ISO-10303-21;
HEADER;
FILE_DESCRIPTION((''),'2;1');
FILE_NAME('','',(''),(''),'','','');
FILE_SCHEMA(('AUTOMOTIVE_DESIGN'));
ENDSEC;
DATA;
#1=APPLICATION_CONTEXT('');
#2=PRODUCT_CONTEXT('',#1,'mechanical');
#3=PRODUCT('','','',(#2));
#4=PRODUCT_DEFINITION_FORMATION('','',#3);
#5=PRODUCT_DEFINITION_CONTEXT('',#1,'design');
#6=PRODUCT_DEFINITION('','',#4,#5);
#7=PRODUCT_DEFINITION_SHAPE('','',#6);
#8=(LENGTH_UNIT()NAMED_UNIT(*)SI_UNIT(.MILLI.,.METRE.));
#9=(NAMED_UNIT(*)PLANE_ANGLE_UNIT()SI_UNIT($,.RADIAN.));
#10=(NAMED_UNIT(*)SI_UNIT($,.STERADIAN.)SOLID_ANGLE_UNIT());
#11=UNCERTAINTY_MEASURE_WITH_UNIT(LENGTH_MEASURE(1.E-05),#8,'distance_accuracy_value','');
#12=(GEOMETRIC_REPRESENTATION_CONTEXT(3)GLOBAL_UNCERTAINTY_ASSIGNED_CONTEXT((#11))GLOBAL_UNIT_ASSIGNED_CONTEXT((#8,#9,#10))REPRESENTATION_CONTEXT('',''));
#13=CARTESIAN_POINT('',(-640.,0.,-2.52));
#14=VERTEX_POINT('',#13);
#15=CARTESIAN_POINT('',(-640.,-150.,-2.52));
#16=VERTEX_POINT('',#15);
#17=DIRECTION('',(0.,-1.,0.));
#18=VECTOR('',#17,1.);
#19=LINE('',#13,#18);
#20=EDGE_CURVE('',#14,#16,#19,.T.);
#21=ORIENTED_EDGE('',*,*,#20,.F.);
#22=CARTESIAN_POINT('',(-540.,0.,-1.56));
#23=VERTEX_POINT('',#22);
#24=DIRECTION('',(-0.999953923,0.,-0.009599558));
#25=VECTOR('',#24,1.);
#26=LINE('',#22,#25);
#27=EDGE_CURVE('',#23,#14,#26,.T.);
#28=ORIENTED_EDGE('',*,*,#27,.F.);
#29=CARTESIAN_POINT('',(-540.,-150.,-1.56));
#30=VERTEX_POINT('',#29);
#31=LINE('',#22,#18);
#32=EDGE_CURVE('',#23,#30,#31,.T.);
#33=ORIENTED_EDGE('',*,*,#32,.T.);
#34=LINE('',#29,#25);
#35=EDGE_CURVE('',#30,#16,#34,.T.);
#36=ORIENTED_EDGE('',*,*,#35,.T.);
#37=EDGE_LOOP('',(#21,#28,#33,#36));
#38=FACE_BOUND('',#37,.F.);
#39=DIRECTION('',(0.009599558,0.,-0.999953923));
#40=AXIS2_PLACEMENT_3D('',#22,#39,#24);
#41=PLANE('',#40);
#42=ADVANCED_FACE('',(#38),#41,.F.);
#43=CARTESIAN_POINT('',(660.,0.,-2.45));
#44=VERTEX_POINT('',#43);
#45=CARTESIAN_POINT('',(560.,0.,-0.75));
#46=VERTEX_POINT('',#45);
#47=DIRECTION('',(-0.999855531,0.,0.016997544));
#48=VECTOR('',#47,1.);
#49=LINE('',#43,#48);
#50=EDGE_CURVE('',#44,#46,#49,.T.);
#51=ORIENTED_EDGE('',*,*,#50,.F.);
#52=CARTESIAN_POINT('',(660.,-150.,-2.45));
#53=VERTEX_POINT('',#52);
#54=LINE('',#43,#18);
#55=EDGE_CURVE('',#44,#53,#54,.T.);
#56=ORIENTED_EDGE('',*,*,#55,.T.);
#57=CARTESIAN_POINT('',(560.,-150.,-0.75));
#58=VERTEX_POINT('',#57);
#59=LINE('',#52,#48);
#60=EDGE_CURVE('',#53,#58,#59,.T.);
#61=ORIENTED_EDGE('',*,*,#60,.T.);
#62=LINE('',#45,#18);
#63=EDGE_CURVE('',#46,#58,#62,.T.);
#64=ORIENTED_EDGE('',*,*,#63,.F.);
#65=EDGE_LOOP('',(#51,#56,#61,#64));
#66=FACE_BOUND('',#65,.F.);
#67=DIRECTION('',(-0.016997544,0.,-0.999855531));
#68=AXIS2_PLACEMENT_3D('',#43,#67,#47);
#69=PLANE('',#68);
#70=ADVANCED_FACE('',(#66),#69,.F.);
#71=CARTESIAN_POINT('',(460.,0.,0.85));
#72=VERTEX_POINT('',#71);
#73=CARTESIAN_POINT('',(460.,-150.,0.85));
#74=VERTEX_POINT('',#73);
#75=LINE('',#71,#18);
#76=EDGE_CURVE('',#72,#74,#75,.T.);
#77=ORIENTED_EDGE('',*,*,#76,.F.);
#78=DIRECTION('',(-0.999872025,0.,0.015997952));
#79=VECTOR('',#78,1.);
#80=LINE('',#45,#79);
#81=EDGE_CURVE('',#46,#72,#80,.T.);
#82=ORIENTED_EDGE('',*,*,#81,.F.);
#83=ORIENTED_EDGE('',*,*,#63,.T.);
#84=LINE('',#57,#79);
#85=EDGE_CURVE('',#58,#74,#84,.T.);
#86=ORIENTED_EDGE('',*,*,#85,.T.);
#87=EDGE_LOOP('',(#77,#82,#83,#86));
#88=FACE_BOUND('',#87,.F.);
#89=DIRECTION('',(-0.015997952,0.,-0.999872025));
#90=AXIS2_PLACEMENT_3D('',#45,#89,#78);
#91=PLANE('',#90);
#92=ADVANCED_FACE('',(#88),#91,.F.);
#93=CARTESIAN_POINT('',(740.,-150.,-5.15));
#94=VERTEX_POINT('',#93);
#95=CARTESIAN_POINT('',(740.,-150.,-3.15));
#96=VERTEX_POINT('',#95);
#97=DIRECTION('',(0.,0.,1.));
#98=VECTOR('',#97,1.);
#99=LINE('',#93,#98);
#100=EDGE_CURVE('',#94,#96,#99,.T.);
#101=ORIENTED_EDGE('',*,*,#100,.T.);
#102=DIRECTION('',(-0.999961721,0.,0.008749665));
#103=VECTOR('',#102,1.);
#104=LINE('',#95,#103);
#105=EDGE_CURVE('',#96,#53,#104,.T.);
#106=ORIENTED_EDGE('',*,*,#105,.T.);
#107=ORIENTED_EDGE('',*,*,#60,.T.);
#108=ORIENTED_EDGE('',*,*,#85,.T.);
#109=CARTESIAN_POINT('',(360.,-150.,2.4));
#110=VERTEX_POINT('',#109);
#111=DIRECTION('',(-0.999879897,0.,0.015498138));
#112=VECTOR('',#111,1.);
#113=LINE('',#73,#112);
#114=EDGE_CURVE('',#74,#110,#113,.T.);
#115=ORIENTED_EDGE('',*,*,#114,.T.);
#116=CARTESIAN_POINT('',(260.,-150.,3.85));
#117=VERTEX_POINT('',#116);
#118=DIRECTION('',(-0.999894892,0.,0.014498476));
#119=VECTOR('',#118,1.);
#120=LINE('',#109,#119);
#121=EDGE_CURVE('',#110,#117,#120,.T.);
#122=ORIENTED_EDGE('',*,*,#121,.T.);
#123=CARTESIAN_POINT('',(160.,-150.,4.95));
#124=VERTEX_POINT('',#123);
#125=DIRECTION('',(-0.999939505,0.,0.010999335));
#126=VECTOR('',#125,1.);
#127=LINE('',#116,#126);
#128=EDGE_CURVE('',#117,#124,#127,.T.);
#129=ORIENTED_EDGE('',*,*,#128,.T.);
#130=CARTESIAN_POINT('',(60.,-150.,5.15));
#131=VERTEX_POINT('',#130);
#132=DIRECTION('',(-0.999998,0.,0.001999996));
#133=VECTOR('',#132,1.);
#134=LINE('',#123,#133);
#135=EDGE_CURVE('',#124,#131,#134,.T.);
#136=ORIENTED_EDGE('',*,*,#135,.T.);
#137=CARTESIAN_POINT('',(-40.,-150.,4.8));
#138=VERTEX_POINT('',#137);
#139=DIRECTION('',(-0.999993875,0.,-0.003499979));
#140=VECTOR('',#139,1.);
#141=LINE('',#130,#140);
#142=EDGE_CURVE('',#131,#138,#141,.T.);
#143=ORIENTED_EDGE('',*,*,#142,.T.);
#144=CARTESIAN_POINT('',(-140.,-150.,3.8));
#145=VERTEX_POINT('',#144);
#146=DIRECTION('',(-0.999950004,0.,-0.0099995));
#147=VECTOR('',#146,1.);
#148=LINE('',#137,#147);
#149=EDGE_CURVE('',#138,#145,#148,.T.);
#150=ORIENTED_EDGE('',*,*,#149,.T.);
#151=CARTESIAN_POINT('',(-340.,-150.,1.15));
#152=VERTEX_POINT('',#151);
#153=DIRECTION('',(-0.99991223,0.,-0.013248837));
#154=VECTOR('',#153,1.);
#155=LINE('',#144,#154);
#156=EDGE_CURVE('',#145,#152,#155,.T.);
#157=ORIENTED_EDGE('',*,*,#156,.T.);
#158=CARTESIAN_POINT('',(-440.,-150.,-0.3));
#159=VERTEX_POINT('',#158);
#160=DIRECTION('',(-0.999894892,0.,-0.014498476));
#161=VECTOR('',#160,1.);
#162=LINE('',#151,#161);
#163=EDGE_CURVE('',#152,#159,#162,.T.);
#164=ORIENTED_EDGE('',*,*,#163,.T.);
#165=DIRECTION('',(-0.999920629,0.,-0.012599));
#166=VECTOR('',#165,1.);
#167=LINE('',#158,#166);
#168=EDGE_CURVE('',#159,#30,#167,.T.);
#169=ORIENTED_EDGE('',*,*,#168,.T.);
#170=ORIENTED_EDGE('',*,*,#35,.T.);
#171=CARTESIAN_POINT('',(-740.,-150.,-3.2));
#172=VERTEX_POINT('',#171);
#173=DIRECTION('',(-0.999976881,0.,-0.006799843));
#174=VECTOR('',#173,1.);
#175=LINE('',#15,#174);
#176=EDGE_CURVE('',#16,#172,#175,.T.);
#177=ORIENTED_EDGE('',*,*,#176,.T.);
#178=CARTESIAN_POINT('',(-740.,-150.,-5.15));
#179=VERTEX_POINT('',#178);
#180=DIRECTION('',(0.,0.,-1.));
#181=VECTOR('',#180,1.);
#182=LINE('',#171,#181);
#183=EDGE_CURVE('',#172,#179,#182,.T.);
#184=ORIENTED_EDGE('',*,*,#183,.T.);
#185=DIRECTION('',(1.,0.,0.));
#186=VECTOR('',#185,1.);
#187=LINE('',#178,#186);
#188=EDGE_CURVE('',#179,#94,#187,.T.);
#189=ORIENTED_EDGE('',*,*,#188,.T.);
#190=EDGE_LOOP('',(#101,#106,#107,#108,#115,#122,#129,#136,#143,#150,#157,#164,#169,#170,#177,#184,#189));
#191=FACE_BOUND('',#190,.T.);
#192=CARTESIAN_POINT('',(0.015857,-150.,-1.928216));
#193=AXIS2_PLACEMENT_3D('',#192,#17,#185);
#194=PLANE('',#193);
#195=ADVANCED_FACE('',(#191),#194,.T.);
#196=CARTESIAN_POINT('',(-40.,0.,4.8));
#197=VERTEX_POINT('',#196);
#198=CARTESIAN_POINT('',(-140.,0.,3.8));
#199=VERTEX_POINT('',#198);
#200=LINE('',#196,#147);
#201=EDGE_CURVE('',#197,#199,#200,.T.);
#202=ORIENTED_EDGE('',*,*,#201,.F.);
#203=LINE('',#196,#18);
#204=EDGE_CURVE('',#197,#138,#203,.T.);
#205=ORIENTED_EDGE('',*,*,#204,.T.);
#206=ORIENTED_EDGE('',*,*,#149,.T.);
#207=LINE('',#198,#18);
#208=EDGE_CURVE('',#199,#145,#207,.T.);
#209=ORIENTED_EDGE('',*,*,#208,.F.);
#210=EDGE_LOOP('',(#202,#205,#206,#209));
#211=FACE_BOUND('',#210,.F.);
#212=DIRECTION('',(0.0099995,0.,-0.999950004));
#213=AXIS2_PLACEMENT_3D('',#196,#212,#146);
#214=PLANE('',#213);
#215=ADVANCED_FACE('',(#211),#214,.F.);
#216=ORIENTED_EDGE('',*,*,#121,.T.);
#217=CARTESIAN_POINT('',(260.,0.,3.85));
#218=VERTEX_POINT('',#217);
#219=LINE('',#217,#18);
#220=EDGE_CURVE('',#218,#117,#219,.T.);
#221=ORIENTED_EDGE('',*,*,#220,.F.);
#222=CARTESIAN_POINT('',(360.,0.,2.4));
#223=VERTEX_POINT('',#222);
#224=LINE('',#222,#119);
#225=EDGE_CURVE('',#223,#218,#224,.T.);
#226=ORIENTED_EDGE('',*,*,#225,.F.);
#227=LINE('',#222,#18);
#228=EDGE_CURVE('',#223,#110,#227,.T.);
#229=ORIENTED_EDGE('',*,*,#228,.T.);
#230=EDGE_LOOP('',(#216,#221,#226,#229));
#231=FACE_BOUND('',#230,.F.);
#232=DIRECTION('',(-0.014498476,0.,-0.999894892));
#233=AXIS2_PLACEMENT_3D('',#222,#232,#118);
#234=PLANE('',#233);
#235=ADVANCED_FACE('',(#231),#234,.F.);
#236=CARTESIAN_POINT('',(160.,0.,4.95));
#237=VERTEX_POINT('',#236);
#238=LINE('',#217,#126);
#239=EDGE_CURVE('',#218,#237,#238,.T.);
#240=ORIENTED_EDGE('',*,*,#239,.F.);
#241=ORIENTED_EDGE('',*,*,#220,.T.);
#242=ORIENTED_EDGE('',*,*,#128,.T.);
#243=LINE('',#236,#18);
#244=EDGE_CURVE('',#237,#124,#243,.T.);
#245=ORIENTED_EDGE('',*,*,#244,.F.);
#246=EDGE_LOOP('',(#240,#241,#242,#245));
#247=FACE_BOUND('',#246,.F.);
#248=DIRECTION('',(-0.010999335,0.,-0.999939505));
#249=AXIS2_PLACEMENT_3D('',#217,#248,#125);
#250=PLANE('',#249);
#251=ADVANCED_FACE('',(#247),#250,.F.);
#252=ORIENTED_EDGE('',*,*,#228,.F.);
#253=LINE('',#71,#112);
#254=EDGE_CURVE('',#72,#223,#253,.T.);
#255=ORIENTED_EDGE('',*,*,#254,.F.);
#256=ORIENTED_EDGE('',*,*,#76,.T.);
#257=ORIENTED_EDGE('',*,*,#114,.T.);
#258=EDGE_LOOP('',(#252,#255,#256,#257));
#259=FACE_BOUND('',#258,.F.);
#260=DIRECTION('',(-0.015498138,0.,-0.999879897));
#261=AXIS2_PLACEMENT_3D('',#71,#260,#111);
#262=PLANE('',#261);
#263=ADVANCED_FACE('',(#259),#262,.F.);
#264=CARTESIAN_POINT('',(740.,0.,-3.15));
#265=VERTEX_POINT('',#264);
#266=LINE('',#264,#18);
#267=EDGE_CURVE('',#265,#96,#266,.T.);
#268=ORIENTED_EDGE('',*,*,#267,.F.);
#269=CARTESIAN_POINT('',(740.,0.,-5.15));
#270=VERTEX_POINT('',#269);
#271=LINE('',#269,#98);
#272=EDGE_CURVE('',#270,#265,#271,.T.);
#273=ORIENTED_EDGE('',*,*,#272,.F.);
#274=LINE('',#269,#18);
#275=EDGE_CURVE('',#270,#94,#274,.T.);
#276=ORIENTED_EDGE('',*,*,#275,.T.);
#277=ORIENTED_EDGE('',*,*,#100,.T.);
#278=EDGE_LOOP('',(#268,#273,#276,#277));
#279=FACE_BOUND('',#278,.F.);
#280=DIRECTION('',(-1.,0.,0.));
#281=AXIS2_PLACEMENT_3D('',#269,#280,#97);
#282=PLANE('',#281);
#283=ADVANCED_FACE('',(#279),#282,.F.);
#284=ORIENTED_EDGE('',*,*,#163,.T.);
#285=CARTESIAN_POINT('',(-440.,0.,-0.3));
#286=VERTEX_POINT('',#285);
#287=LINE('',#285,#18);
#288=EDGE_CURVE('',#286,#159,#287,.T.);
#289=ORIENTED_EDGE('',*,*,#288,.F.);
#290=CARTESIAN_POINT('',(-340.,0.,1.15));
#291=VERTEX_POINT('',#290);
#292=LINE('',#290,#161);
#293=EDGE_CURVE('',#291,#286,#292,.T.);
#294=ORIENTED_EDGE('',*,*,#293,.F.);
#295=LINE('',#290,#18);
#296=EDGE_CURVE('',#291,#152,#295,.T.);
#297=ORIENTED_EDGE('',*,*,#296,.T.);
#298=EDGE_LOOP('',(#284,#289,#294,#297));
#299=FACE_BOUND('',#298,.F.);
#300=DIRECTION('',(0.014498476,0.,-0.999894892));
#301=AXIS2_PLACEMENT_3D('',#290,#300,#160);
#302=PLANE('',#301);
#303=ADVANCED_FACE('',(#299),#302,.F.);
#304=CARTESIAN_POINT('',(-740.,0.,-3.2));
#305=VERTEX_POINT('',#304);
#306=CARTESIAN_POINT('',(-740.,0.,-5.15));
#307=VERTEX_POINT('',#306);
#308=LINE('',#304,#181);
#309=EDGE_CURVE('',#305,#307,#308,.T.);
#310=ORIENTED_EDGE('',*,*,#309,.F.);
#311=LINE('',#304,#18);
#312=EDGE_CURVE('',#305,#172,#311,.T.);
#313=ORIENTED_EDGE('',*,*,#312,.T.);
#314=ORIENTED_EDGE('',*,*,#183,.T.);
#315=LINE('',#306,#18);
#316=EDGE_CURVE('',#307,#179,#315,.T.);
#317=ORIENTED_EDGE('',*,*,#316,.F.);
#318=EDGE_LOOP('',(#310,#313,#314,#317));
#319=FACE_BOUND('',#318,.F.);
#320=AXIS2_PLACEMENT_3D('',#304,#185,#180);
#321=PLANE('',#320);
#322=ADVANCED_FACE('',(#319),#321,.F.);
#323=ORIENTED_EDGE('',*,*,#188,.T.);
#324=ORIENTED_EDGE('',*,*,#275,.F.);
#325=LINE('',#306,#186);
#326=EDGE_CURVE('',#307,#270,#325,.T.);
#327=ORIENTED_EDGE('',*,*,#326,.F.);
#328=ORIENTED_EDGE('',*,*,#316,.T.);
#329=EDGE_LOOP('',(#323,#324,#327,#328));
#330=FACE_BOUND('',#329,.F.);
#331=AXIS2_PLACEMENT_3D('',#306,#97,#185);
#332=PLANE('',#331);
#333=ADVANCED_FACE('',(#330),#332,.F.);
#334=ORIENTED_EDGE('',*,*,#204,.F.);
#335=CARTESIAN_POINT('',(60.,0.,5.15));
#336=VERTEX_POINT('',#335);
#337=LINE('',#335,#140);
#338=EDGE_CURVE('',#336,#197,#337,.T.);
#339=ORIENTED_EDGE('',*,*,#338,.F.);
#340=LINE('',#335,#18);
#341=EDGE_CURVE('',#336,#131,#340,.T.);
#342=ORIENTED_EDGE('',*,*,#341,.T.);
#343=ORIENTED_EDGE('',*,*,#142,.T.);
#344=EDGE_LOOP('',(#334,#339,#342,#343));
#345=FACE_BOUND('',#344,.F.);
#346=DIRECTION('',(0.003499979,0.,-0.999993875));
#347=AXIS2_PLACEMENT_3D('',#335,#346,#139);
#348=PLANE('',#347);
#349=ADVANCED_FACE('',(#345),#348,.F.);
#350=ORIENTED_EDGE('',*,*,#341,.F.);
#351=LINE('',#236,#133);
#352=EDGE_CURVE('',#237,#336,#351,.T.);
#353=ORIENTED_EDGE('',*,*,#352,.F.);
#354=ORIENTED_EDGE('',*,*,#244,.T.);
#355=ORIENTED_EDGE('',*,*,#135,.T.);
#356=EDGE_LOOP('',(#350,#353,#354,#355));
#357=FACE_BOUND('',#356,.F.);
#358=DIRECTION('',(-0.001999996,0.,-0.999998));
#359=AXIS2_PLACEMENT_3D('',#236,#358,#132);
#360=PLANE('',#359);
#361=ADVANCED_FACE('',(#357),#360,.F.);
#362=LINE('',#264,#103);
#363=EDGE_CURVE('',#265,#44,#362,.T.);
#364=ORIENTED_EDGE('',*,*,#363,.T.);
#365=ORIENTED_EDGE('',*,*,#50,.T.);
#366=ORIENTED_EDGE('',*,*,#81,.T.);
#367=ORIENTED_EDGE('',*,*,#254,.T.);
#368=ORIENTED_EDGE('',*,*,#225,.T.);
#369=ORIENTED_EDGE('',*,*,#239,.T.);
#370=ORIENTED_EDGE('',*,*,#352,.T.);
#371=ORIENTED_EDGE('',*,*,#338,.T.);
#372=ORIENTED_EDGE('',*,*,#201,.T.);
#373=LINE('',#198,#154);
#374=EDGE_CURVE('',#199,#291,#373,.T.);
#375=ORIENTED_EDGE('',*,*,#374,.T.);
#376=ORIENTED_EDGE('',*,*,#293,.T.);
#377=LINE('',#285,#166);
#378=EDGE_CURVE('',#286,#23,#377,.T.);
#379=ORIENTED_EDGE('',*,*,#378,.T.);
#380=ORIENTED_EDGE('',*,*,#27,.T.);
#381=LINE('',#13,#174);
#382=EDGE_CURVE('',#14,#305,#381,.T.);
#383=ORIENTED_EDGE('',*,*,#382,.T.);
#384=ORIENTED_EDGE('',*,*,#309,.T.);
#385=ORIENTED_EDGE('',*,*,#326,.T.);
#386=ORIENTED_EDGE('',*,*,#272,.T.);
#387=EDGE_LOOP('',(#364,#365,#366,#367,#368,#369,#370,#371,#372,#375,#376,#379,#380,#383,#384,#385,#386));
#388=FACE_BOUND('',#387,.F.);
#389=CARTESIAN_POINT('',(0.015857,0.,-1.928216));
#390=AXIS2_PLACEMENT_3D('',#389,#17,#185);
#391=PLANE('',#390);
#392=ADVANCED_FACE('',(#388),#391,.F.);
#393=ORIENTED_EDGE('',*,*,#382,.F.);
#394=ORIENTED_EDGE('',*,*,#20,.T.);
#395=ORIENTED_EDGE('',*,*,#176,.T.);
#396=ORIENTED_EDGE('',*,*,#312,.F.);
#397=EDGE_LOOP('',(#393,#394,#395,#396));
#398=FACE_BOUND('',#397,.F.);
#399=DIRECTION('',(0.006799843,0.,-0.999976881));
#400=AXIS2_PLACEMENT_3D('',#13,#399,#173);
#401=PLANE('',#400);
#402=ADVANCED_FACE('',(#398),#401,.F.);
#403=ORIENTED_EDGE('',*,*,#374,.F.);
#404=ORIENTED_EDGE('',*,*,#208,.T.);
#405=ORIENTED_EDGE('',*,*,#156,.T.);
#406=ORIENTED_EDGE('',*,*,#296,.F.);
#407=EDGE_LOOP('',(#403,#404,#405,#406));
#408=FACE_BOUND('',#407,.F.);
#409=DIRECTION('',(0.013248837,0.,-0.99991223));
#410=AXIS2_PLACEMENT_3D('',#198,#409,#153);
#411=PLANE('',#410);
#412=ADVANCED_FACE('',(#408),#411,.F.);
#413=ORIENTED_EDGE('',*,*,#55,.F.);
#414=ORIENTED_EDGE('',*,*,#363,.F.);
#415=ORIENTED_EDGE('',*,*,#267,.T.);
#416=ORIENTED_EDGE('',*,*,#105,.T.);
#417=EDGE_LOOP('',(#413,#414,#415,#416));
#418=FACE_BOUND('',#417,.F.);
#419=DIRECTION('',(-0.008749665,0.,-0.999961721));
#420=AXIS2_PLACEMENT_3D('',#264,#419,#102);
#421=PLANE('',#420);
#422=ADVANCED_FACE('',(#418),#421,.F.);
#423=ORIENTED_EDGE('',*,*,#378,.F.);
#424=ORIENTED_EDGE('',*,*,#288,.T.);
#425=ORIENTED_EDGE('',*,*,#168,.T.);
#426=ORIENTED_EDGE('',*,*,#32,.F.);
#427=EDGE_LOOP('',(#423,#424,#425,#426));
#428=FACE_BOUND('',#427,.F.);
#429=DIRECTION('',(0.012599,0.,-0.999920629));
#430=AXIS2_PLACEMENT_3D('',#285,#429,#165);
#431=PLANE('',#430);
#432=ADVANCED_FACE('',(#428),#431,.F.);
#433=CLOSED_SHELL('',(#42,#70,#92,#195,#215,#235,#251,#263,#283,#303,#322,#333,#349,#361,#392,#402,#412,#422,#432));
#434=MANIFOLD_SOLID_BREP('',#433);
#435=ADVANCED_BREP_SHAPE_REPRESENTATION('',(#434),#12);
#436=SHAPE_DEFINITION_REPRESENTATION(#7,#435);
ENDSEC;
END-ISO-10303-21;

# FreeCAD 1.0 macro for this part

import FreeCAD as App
import Part
import Sketcher

V = App.Vector
Q = App.Units.Quantity

doc = App.newDocument("Part")
body = doc.addObject("PartDesign::Body", "Body")

sketch1 = body.newObject("Sketcher::SketchObject", "Sketch")
sketch1.AttachmentSupport = (doc.getObject("XZ_Plane"), [""])
sketch1.MapMode = "FlatFace"
sketch1.addGeometry([
    Part.LineSegment(V(-740, -3.2, 0), V(-740, -5.2, 0)),
    Part.LineSegment(V(-740, -5.2, 0), V(740, -5.2, 0)),
    Part.LineSegment(V(740, -5.2, 0), V(740, -3.1, 0)),
    Part.LineSegment(V(740, -3.1, 0), V(660, -2.5, 0)),
    Part.LineSegment(V(660, -2.5, 0), V(560, -0.8, 0)),
    Part.LineSegment(V(560, -0.8, 0), V(460, 0.8, 0)),
    Part.LineSegment(V(460, 0.8, 0), V(360, 2.4, 0)),
    Part.LineSegment(V(360, 2.4, 0), V(260, 3.9, 0)),
    Part.LineSegment(V(260, 3.9, 0), V(160, 5, 0)),
    Part.LineSegment(V(160, 5, 0), V(60, 5.2, 0)),
    Part.LineSegment(V(60, 5.2, 0), V(-40, 4.8, 0)),
    Part.LineSegment(V(-40, 4.8, 0), V(-140, 3.8, 0)),
    Part.LineSegment(V(-140, 3.8, 0), V(-340, 1.1, 0)),
    Part.LineSegment(V(-340, 1.1, 0), V(-440, -0.3, 0)),
    Part.LineSegment(V(-440, -0.3, 0), V(-540, -1.6, 0)),
    Part.LineSegment(V(-540, -1.6, 0), V(-640, -2.5, 0)),
    Part.LineSegment(V(-640, -2.5, 0), V(-740, -3.2, 0)),
], False)
sketch1.addConstraint([
    Sketcher.Constraint("Coincident", 0, 2, 1, 1),
    Sketcher.Constraint("Coincident", 1, 2, 2, 1),
    Sketcher.Constraint("Coincident", 2, 2, 3, 1),
    Sketcher.Constraint("Coincident", 3, 2, 4, 1),
    Sketcher.Constraint("Coincident", 4, 2, 5, 1),
    Sketcher.Constraint("Coincident", 5, 2, 6, 1),
    Sketcher.Constraint("Coincident", 6, 2, 7, 1),
    Sketcher.Constraint("Coincident", 7, 2, 8, 1),
    Sketcher.Constraint("Coincident", 8, 2, 9, 1),
    Sketcher.Constraint("Coincident", 9, 2, 10, 1),
    Sketcher.Constraint("Coincident", 10, 2, 11, 1),
    Sketcher.Constraint("Coincident", 11, 2, 12, 1),
    Sketcher.Constraint("Coincident", 12, 2, 13, 1),
    Sketcher.Constraint("Coincident", 13, 2, 14, 1),
    Sketcher.Constraint("Coincident", 14, 2, 15, 1),
    Sketcher.Constraint("Coincident", 15, 2, 16, 1),
    Sketcher.Constraint("Coincident", 16, 2, 0, 1),
    Sketcher.Constraint("Vertical", 0),
    Sketcher.Constraint("Horizontal", 1),
    Sketcher.Constraint("Vertical", 2),
    Sketcher.Constraint("Equal", 7, 13),
    Sketcher.Constraint("DistanceX", 1, 1, 1, 2, Q("1480 mm")),
    Sketcher.Constraint("DistanceY", 2, 1, 2, 2, Q("2 mm")),
    Sketcher.Constraint("DistanceX", 0, 2, -1, 1, Q("740 mm")),
    Sketcher.Constraint("DistanceX", -1, 1, 3, 2, Q("660 mm")),
    Sketcher.Constraint("DistanceX", -1, 1, 4, 2, Q("560 mm")),
    Sketcher.Constraint("DistanceX", -1, 1, 5, 2, Q("460 mm")),
    Sketcher.Constraint("DistanceX", -1, 1, 6, 2, Q("360 mm")),
    Sketcher.Constraint("DistanceX", -1, 1, 7, 2, Q("260 mm")),
    Sketcher.Constraint("DistanceX", -1, 1, 8, 2, Q("160 mm")),
    Sketcher.Constraint("DistanceX", -1, 1, 9, 2, Q("60 mm")),
    Sketcher.Constraint("DistanceX", 10, 2, -1, 1, Q("40 mm")),
    Sketcher.Constraint("DistanceX", 11, 2, -1, 1, Q("140 mm")),
    Sketcher.Constraint("DistanceX", 12, 2, -1, 1, Q("340 mm")),
    Sketcher.Constraint("DistanceX", 13, 2, -1, 1, Q("440 mm")),
    Sketcher.Constraint("DistanceX", 14, 2, -1, 1, Q("540 mm")),
    Sketcher.Constraint("DistanceX", 15, 2, -1, 1, Q("640 mm")),
    Sketcher.Constraint("DistanceY", 2, 2, 5, 2, Q("4 mm")),
    Sketcher.Constraint("DistanceY", 5, 2, 7, 2, Q("3 mm")),
    Sketcher.Constraint("DistanceY", 11, 2, 10, 2, Q("1 mm")),
    Sketcher.Constraint("DistanceY", 12, 2, 9, 2, Q("4 mm")),
    Sketcher.Constraint("DistanceY", 0, 2, 0, 1, Q("1.95 mm")),
    Sketcher.Constraint("DistanceY", -1, 1, 6, 2, Q("2.4 mm")),
    Sketcher.Constraint("DistanceY", -1, 1, 10, 2, Q("4.8 mm")),
    Sketcher.Constraint("DistanceY", 13, 2, -1, 1, Q("0.3 mm")),
    Sketcher.Constraint("DistanceY", 16, 2, -1, 1, Q("3.2 mm")),
    Sketcher.Constraint("DistanceY", 2, 2, 3, 2, Q("0.7 mm")),
    Sketcher.Constraint("DistanceY", 3, 2, 4, 2, Q("1.7 mm")),
    Sketcher.Constraint("DistanceY", 7, 2, 8, 2, Q("1.1 mm")),
    Sketcher.Constraint("DistanceY", 14, 2, -1, 1, Q("1.56 mm")),
    Sketcher.Constraint("DistanceY", 15, 2, -1, 1, Q("2.52 mm")),
])
pad1 = body.newObject("PartDesign::Pad", "Pad")
pad1.Profile = sketch1
pad1.Length = 150

doc.recompute()
